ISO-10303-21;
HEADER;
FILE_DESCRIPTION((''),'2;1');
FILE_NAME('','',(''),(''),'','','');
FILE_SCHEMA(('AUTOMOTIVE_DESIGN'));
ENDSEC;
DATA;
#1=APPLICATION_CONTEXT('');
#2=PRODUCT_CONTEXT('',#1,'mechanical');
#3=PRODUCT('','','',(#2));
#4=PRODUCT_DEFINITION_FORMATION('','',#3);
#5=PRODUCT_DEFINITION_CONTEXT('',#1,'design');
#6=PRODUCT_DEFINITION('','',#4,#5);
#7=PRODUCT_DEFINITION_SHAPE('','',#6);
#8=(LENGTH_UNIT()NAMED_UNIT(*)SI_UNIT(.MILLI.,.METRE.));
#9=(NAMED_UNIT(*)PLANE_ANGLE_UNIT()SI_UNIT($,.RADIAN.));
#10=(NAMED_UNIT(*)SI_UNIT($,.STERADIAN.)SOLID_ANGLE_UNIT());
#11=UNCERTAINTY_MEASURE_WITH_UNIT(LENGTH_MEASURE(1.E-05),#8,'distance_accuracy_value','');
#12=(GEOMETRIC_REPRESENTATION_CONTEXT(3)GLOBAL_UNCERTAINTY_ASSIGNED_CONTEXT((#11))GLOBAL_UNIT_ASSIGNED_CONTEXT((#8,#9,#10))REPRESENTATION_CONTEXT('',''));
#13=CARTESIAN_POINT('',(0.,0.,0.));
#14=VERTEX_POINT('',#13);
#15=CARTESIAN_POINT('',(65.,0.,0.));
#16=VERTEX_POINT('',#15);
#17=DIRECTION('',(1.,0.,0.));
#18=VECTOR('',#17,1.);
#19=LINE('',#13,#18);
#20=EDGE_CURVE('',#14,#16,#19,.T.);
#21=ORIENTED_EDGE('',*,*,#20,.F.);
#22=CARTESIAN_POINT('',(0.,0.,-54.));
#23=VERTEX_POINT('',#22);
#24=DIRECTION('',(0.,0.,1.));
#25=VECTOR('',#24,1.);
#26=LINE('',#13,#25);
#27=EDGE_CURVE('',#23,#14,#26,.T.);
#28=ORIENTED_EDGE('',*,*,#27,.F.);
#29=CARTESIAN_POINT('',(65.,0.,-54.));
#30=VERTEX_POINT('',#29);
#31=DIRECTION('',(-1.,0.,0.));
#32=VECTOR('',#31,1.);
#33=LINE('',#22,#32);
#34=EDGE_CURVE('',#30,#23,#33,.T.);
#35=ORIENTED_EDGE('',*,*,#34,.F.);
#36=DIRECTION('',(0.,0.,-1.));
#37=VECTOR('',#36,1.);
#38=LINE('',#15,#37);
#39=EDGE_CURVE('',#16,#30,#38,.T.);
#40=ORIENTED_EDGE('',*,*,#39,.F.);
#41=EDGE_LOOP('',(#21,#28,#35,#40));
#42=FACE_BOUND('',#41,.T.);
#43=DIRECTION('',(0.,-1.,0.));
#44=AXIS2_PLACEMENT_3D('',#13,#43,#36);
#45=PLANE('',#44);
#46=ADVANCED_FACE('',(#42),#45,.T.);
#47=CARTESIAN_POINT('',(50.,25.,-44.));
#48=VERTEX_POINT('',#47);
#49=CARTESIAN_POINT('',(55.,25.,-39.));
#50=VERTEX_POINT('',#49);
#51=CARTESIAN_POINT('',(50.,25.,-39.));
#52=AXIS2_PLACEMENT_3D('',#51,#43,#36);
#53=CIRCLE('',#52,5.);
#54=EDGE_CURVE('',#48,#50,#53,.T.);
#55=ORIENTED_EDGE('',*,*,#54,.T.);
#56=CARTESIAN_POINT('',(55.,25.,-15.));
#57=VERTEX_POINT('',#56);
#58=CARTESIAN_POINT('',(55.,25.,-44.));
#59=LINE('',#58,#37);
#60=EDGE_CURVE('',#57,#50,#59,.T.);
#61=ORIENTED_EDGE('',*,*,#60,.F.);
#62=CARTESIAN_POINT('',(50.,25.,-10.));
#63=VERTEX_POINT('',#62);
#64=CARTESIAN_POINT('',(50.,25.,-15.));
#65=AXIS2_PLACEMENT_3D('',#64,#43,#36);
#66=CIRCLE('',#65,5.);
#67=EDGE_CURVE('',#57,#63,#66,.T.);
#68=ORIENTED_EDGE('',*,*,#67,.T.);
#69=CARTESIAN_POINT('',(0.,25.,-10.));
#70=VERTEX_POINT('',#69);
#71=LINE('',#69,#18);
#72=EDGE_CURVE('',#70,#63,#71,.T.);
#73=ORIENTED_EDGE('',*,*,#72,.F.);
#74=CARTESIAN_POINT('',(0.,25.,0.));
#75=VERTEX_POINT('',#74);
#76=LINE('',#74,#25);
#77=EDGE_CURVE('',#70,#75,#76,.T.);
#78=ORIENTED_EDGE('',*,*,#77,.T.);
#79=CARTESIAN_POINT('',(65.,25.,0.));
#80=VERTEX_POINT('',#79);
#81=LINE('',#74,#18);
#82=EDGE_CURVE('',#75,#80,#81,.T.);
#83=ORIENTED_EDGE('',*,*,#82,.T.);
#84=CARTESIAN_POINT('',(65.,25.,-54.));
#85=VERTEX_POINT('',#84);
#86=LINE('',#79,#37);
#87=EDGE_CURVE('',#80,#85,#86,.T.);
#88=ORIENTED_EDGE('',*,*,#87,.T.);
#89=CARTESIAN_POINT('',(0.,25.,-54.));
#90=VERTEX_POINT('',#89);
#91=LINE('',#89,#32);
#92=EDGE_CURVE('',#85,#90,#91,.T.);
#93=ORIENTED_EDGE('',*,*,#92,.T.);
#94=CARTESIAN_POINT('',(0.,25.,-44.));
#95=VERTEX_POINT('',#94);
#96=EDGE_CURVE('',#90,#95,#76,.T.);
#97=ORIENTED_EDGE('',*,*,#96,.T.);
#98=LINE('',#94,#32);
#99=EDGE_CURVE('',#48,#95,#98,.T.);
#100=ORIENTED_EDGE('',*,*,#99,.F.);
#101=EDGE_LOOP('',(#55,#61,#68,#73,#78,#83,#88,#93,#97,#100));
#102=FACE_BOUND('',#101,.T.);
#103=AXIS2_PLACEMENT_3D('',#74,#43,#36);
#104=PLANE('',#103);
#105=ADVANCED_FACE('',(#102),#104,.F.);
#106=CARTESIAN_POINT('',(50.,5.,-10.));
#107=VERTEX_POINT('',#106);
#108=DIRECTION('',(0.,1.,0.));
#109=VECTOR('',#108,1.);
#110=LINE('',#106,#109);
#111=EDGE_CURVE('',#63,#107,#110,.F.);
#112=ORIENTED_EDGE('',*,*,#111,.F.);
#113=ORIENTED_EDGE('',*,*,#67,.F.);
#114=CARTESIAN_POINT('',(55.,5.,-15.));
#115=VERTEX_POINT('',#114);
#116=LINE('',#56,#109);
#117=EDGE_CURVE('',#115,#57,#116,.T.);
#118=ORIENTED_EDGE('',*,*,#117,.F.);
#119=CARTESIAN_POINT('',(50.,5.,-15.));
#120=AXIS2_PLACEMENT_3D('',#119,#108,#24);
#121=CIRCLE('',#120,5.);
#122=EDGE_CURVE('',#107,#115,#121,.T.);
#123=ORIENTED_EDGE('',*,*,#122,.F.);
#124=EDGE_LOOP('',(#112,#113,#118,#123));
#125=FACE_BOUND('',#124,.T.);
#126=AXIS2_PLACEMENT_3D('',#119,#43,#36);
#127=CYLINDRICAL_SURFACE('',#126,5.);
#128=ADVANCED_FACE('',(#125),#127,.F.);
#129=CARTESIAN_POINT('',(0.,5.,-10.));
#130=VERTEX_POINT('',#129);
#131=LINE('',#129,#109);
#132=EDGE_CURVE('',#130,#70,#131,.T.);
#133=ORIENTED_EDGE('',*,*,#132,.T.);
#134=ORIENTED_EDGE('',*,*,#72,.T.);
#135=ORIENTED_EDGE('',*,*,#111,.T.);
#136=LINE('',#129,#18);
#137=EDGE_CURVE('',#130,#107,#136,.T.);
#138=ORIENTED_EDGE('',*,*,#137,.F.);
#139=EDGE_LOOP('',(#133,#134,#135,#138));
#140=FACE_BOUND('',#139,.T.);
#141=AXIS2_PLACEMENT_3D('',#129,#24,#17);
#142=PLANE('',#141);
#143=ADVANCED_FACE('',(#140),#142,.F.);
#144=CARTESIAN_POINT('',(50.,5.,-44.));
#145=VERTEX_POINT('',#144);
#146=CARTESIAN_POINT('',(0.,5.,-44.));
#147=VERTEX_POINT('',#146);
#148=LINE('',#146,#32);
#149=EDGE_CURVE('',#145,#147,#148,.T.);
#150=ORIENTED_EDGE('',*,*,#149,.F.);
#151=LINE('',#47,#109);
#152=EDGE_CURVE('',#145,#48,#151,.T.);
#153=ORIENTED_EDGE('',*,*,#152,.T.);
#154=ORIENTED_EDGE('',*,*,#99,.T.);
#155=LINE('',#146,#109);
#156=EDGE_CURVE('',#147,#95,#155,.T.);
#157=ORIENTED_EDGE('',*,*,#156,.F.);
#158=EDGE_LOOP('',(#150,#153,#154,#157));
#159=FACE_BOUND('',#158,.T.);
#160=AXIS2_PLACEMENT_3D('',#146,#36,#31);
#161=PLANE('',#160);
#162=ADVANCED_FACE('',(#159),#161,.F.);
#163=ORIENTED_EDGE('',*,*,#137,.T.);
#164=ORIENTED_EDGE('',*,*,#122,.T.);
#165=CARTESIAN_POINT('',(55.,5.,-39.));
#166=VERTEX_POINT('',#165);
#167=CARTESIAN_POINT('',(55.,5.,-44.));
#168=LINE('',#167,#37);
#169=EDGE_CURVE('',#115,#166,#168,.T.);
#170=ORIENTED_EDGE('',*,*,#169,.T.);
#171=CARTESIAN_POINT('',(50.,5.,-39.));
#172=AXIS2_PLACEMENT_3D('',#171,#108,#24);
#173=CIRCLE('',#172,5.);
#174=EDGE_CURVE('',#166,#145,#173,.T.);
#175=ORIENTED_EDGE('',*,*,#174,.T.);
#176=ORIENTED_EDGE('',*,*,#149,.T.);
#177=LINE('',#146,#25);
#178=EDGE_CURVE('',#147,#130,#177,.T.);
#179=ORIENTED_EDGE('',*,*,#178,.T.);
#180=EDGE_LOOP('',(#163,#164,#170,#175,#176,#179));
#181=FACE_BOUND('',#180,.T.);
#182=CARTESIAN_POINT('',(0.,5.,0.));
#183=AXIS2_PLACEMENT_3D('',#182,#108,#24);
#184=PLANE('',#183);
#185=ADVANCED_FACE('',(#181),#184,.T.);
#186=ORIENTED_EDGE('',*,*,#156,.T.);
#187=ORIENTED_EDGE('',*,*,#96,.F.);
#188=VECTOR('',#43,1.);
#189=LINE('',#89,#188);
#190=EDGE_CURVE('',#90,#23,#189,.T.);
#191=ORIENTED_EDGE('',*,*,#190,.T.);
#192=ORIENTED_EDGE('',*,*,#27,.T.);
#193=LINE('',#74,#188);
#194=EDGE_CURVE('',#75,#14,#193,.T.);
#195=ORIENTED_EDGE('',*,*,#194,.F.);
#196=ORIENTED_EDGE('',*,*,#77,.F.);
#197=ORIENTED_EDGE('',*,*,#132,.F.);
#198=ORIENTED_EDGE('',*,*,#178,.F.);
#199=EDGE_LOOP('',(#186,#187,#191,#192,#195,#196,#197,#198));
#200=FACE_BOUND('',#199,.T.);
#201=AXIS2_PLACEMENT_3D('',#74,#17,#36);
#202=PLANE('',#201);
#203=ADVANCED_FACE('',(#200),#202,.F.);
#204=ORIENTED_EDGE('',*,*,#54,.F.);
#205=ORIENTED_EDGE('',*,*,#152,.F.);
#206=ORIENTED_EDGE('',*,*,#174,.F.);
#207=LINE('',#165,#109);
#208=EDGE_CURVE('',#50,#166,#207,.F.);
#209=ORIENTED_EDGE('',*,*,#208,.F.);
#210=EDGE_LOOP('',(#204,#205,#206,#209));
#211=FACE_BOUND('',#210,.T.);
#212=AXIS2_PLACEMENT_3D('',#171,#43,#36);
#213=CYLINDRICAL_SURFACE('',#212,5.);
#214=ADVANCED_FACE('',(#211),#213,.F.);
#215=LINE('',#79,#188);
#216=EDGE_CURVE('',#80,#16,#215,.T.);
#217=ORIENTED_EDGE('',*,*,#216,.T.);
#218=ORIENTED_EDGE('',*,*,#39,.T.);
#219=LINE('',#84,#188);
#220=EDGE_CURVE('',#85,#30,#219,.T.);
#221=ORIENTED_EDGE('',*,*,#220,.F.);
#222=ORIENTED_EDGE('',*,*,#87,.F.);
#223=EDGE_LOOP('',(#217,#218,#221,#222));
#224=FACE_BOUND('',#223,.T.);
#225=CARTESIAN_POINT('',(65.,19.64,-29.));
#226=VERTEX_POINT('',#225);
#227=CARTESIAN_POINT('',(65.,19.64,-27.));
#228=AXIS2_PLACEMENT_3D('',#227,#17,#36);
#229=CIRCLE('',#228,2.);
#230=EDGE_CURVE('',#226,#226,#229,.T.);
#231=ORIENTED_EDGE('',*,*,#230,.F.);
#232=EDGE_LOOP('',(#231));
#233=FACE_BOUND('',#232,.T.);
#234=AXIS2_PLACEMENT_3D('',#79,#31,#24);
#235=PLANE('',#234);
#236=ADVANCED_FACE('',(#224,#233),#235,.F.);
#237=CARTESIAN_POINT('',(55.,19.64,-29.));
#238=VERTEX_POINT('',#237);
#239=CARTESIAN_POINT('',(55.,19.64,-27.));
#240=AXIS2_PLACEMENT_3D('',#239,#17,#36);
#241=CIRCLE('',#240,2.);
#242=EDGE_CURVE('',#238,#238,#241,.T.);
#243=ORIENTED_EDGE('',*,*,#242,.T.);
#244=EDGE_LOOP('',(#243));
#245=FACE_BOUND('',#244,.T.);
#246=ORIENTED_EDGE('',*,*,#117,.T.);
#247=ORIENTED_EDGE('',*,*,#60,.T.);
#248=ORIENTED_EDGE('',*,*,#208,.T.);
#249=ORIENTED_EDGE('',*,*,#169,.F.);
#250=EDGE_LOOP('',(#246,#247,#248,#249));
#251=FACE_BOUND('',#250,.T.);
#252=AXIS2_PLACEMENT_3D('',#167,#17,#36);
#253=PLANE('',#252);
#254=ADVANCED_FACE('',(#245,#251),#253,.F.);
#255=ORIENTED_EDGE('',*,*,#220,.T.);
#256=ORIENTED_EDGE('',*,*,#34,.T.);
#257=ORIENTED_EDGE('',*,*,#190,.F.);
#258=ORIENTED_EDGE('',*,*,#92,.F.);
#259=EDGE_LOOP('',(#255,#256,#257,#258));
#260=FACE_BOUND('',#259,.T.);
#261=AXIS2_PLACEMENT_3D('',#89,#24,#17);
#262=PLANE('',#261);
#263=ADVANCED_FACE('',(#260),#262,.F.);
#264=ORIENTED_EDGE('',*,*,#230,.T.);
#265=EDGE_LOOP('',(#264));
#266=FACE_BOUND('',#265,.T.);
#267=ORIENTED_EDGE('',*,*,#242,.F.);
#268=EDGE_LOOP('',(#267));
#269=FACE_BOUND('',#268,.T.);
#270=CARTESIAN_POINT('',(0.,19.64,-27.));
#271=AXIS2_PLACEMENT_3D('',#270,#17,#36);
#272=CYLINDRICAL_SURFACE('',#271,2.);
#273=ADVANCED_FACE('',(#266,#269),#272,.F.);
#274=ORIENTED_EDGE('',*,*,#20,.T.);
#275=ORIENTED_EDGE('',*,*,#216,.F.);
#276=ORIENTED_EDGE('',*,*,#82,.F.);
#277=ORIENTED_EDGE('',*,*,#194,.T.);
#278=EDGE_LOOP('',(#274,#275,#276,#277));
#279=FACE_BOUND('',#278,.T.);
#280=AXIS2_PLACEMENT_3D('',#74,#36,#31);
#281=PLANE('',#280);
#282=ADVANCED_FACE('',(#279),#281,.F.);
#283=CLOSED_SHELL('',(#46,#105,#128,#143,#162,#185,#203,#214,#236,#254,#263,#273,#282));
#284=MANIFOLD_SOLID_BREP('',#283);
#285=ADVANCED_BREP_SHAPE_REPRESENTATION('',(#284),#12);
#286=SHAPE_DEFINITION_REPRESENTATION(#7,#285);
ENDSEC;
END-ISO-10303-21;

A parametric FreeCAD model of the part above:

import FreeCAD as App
import Part
import Sketcher
from FreeCAD import Vector
Q = App.Units.Quantity


def edges_at(feature, points):
    """Names of the edges that pass closest to the given points."""
    edges = feature.Shape.Edges
    near = lambda p: min(range(len(edges)), key=lambda i: edges[i].distToShape(Part.Vertex(*p))[0])
    return sorted({f"Edge{near(p) + 1}" for p in points})

doc = App.newDocument("Part")
params = doc.addObject("Spreadsheet::Sheet", "Params")
for row, (alias, value) in enumerate([
    ("sketch1_width", "65 mm"),
    ("sketch1_height", "54 mm"),
    ("pad1_length", "25 mm"),
    ("sketch2_width", "55 mm"),
    ("sketch2_height", "34 mm"),
    ("pocket1_length", "20 mm"),
    ("sketch3_diameter", "4 mm"),
    ("fillet_radius", "5 mm"),
], start=1):
    params.set(f"A{row}", alias)
    params.set(f"B{row}", "=" + value)
    params.setAlias(f"B{row}", alias)

body = doc.addObject("PartDesign::Body", "Body")

# Sketch on XZ plane
sketch1 = body.newObject("Sketcher::SketchObject", "Sketch")
sketch1.AttachmentSupport = (doc.getObject("XZ_Plane"), [""])
sketch1.MapMode = "FlatFace"
sketch1.addGeometry([
    Part.LineSegment(Vector(0, -54, 0), Vector(0, 0, 0)),
    Part.LineSegment(Vector(0, 0, 0), Vector(65, 0, 0)),
    Part.LineSegment(Vector(65, 0, 0), Vector(65, -54, 0)),
    Part.LineSegment(Vector(65, -54, 0), Vector(0, -54, 0)),
], False)
sketch1.addConstraint([
    Sketcher.Constraint("Coincident", 0, 2, 1, 1),
    Sketcher.Constraint("Coincident", 1, 2, 2, 1),
    Sketcher.Constraint("Coincident", 2, 2, 3, 1),
    Sketcher.Constraint("Coincident", 3, 2, 0, 1),
    Sketcher.Constraint("Vertical", 0),
    Sketcher.Constraint("Horizontal", 1),
    Sketcher.Constraint("Vertical", 2),
    Sketcher.Constraint("Horizontal", 3),
    Sketcher.Constraint("Coincident", 0, 2, -1, 1),
    Sketcher.Constraint("DistanceX", 1, 1, 1, 2, Q("65 mm")),
    Sketcher.Constraint("DistanceY", 0, 1, 0, 2, Q("54 mm")),
])
sketch1.setExpression("Constraints[9]", "Params.sketch1_width")
sketch1.setExpression("Constraints[10]", "Params.sketch1_height")
pad1 = body.newObject("PartDesign::Pad", "Pad")
pad1.Profile = sketch1
pad1.setExpression("Length", "Params.pad1_length")
pad1.Reversed = True

# Sketch on XZ plane
sketch2 = body.newObject("Sketcher::SketchObject", "Sketch001")
sketch2.AttachmentSupport = (doc.getObject("XZ_Plane"), [""])
sketch2.MapMode = "FlatFace"
sketch2.AttachmentOffset = App.Placement(Vector(0, 0, -25), App.Rotation())
sketch2.addGeometry([
    Part.LineSegment(Vector(0, -44, 0), Vector(0, -10, 0)),
    Part.LineSegment(Vector(0, -10, 0), Vector(55, -10, 0)),
    Part.LineSegment(Vector(55, -10, 0), Vector(55, -44, 0)),
    Part.LineSegment(Vector(55, -44, 0), Vector(0, -44, 0)),
], False)
sketch2.addConstraint([
    Sketcher.Constraint("Coincident", 0, 2, 1, 1),
    Sketcher.Constraint("Coincident", 1, 2, 2, 1),
    Sketcher.Constraint("Coincident", 2, 2, 3, 1),
    Sketcher.Constraint("Coincident", 3, 2, 0, 1),
    Sketcher.Constraint("Vertical", 0),
    Sketcher.Constraint("Horizontal", 1),
    Sketcher.Constraint("Vertical", 2),
    Sketcher.Constraint("Horizontal", 3),
    Sketcher.Constraint("PointOnObject", 0, 2, -2),
    Sketcher.Constraint("DistanceX", 1, 1, 1, 2, Q("55 mm")),
    Sketcher.Constraint("DistanceY", 0, 1, 0, 2, Q("34 mm")),
    Sketcher.Constraint("DistanceY", 0, 2, -1, 1, Q("10 mm")),
])
sketch2.setExpression("Constraints[9]", "Params.sketch2_width")
sketch2.setExpression("Constraints[10]", "Params.sketch2_height")
pocket1 = body.newObject("PartDesign::Pocket", "Pocket")
pocket1.Profile = sketch2
pocket1.setExpression("Length", "Params.pocket1_length")
pocket1.Reversed = True

# Sketch on YZ plane
sketch3 = body.newObject("Sketcher::SketchObject", "Sketch002")
sketch3.AttachmentSupport = (doc.getObject("YZ_Plane"), [""])
sketch3.MapMode = "FlatFace"
sketch3.AttachmentOffset = App.Placement(Vector(0, 0, 65), App.Rotation())
sketch3.addGeometry(Part.Circle(Vector(19.6, -27, 0), Vector(0, 0, 1), 2), False)
sketch3.addConstraint([
    Sketcher.Constraint("Diameter", 0, Q("4 mm")),
    Sketcher.Constraint("DistanceY", 0, 3, -1, 1, Q("27 mm")),
    Sketcher.Constraint("DistanceX", -1, 1, 0, 3, Q("19.64 mm")),
])
sketch3.setExpression("Constraints[0]", "Params.sketch3_diameter")
pocket2 = body.newObject("PartDesign::Pocket", "Pocket001")
pocket2.Profile = sketch3
pocket2.Type = "ThroughAll"
doc.recompute()

fillet = body.newObject("PartDesign::Fillet", "Fillet")
fillet.Base = (pocket2, edges_at(pocket2, [(55, 15, -44), (55, 15, -10)]))
fillet.setExpression("Radius", "Params.fillet_radius")

doc.recompute()
